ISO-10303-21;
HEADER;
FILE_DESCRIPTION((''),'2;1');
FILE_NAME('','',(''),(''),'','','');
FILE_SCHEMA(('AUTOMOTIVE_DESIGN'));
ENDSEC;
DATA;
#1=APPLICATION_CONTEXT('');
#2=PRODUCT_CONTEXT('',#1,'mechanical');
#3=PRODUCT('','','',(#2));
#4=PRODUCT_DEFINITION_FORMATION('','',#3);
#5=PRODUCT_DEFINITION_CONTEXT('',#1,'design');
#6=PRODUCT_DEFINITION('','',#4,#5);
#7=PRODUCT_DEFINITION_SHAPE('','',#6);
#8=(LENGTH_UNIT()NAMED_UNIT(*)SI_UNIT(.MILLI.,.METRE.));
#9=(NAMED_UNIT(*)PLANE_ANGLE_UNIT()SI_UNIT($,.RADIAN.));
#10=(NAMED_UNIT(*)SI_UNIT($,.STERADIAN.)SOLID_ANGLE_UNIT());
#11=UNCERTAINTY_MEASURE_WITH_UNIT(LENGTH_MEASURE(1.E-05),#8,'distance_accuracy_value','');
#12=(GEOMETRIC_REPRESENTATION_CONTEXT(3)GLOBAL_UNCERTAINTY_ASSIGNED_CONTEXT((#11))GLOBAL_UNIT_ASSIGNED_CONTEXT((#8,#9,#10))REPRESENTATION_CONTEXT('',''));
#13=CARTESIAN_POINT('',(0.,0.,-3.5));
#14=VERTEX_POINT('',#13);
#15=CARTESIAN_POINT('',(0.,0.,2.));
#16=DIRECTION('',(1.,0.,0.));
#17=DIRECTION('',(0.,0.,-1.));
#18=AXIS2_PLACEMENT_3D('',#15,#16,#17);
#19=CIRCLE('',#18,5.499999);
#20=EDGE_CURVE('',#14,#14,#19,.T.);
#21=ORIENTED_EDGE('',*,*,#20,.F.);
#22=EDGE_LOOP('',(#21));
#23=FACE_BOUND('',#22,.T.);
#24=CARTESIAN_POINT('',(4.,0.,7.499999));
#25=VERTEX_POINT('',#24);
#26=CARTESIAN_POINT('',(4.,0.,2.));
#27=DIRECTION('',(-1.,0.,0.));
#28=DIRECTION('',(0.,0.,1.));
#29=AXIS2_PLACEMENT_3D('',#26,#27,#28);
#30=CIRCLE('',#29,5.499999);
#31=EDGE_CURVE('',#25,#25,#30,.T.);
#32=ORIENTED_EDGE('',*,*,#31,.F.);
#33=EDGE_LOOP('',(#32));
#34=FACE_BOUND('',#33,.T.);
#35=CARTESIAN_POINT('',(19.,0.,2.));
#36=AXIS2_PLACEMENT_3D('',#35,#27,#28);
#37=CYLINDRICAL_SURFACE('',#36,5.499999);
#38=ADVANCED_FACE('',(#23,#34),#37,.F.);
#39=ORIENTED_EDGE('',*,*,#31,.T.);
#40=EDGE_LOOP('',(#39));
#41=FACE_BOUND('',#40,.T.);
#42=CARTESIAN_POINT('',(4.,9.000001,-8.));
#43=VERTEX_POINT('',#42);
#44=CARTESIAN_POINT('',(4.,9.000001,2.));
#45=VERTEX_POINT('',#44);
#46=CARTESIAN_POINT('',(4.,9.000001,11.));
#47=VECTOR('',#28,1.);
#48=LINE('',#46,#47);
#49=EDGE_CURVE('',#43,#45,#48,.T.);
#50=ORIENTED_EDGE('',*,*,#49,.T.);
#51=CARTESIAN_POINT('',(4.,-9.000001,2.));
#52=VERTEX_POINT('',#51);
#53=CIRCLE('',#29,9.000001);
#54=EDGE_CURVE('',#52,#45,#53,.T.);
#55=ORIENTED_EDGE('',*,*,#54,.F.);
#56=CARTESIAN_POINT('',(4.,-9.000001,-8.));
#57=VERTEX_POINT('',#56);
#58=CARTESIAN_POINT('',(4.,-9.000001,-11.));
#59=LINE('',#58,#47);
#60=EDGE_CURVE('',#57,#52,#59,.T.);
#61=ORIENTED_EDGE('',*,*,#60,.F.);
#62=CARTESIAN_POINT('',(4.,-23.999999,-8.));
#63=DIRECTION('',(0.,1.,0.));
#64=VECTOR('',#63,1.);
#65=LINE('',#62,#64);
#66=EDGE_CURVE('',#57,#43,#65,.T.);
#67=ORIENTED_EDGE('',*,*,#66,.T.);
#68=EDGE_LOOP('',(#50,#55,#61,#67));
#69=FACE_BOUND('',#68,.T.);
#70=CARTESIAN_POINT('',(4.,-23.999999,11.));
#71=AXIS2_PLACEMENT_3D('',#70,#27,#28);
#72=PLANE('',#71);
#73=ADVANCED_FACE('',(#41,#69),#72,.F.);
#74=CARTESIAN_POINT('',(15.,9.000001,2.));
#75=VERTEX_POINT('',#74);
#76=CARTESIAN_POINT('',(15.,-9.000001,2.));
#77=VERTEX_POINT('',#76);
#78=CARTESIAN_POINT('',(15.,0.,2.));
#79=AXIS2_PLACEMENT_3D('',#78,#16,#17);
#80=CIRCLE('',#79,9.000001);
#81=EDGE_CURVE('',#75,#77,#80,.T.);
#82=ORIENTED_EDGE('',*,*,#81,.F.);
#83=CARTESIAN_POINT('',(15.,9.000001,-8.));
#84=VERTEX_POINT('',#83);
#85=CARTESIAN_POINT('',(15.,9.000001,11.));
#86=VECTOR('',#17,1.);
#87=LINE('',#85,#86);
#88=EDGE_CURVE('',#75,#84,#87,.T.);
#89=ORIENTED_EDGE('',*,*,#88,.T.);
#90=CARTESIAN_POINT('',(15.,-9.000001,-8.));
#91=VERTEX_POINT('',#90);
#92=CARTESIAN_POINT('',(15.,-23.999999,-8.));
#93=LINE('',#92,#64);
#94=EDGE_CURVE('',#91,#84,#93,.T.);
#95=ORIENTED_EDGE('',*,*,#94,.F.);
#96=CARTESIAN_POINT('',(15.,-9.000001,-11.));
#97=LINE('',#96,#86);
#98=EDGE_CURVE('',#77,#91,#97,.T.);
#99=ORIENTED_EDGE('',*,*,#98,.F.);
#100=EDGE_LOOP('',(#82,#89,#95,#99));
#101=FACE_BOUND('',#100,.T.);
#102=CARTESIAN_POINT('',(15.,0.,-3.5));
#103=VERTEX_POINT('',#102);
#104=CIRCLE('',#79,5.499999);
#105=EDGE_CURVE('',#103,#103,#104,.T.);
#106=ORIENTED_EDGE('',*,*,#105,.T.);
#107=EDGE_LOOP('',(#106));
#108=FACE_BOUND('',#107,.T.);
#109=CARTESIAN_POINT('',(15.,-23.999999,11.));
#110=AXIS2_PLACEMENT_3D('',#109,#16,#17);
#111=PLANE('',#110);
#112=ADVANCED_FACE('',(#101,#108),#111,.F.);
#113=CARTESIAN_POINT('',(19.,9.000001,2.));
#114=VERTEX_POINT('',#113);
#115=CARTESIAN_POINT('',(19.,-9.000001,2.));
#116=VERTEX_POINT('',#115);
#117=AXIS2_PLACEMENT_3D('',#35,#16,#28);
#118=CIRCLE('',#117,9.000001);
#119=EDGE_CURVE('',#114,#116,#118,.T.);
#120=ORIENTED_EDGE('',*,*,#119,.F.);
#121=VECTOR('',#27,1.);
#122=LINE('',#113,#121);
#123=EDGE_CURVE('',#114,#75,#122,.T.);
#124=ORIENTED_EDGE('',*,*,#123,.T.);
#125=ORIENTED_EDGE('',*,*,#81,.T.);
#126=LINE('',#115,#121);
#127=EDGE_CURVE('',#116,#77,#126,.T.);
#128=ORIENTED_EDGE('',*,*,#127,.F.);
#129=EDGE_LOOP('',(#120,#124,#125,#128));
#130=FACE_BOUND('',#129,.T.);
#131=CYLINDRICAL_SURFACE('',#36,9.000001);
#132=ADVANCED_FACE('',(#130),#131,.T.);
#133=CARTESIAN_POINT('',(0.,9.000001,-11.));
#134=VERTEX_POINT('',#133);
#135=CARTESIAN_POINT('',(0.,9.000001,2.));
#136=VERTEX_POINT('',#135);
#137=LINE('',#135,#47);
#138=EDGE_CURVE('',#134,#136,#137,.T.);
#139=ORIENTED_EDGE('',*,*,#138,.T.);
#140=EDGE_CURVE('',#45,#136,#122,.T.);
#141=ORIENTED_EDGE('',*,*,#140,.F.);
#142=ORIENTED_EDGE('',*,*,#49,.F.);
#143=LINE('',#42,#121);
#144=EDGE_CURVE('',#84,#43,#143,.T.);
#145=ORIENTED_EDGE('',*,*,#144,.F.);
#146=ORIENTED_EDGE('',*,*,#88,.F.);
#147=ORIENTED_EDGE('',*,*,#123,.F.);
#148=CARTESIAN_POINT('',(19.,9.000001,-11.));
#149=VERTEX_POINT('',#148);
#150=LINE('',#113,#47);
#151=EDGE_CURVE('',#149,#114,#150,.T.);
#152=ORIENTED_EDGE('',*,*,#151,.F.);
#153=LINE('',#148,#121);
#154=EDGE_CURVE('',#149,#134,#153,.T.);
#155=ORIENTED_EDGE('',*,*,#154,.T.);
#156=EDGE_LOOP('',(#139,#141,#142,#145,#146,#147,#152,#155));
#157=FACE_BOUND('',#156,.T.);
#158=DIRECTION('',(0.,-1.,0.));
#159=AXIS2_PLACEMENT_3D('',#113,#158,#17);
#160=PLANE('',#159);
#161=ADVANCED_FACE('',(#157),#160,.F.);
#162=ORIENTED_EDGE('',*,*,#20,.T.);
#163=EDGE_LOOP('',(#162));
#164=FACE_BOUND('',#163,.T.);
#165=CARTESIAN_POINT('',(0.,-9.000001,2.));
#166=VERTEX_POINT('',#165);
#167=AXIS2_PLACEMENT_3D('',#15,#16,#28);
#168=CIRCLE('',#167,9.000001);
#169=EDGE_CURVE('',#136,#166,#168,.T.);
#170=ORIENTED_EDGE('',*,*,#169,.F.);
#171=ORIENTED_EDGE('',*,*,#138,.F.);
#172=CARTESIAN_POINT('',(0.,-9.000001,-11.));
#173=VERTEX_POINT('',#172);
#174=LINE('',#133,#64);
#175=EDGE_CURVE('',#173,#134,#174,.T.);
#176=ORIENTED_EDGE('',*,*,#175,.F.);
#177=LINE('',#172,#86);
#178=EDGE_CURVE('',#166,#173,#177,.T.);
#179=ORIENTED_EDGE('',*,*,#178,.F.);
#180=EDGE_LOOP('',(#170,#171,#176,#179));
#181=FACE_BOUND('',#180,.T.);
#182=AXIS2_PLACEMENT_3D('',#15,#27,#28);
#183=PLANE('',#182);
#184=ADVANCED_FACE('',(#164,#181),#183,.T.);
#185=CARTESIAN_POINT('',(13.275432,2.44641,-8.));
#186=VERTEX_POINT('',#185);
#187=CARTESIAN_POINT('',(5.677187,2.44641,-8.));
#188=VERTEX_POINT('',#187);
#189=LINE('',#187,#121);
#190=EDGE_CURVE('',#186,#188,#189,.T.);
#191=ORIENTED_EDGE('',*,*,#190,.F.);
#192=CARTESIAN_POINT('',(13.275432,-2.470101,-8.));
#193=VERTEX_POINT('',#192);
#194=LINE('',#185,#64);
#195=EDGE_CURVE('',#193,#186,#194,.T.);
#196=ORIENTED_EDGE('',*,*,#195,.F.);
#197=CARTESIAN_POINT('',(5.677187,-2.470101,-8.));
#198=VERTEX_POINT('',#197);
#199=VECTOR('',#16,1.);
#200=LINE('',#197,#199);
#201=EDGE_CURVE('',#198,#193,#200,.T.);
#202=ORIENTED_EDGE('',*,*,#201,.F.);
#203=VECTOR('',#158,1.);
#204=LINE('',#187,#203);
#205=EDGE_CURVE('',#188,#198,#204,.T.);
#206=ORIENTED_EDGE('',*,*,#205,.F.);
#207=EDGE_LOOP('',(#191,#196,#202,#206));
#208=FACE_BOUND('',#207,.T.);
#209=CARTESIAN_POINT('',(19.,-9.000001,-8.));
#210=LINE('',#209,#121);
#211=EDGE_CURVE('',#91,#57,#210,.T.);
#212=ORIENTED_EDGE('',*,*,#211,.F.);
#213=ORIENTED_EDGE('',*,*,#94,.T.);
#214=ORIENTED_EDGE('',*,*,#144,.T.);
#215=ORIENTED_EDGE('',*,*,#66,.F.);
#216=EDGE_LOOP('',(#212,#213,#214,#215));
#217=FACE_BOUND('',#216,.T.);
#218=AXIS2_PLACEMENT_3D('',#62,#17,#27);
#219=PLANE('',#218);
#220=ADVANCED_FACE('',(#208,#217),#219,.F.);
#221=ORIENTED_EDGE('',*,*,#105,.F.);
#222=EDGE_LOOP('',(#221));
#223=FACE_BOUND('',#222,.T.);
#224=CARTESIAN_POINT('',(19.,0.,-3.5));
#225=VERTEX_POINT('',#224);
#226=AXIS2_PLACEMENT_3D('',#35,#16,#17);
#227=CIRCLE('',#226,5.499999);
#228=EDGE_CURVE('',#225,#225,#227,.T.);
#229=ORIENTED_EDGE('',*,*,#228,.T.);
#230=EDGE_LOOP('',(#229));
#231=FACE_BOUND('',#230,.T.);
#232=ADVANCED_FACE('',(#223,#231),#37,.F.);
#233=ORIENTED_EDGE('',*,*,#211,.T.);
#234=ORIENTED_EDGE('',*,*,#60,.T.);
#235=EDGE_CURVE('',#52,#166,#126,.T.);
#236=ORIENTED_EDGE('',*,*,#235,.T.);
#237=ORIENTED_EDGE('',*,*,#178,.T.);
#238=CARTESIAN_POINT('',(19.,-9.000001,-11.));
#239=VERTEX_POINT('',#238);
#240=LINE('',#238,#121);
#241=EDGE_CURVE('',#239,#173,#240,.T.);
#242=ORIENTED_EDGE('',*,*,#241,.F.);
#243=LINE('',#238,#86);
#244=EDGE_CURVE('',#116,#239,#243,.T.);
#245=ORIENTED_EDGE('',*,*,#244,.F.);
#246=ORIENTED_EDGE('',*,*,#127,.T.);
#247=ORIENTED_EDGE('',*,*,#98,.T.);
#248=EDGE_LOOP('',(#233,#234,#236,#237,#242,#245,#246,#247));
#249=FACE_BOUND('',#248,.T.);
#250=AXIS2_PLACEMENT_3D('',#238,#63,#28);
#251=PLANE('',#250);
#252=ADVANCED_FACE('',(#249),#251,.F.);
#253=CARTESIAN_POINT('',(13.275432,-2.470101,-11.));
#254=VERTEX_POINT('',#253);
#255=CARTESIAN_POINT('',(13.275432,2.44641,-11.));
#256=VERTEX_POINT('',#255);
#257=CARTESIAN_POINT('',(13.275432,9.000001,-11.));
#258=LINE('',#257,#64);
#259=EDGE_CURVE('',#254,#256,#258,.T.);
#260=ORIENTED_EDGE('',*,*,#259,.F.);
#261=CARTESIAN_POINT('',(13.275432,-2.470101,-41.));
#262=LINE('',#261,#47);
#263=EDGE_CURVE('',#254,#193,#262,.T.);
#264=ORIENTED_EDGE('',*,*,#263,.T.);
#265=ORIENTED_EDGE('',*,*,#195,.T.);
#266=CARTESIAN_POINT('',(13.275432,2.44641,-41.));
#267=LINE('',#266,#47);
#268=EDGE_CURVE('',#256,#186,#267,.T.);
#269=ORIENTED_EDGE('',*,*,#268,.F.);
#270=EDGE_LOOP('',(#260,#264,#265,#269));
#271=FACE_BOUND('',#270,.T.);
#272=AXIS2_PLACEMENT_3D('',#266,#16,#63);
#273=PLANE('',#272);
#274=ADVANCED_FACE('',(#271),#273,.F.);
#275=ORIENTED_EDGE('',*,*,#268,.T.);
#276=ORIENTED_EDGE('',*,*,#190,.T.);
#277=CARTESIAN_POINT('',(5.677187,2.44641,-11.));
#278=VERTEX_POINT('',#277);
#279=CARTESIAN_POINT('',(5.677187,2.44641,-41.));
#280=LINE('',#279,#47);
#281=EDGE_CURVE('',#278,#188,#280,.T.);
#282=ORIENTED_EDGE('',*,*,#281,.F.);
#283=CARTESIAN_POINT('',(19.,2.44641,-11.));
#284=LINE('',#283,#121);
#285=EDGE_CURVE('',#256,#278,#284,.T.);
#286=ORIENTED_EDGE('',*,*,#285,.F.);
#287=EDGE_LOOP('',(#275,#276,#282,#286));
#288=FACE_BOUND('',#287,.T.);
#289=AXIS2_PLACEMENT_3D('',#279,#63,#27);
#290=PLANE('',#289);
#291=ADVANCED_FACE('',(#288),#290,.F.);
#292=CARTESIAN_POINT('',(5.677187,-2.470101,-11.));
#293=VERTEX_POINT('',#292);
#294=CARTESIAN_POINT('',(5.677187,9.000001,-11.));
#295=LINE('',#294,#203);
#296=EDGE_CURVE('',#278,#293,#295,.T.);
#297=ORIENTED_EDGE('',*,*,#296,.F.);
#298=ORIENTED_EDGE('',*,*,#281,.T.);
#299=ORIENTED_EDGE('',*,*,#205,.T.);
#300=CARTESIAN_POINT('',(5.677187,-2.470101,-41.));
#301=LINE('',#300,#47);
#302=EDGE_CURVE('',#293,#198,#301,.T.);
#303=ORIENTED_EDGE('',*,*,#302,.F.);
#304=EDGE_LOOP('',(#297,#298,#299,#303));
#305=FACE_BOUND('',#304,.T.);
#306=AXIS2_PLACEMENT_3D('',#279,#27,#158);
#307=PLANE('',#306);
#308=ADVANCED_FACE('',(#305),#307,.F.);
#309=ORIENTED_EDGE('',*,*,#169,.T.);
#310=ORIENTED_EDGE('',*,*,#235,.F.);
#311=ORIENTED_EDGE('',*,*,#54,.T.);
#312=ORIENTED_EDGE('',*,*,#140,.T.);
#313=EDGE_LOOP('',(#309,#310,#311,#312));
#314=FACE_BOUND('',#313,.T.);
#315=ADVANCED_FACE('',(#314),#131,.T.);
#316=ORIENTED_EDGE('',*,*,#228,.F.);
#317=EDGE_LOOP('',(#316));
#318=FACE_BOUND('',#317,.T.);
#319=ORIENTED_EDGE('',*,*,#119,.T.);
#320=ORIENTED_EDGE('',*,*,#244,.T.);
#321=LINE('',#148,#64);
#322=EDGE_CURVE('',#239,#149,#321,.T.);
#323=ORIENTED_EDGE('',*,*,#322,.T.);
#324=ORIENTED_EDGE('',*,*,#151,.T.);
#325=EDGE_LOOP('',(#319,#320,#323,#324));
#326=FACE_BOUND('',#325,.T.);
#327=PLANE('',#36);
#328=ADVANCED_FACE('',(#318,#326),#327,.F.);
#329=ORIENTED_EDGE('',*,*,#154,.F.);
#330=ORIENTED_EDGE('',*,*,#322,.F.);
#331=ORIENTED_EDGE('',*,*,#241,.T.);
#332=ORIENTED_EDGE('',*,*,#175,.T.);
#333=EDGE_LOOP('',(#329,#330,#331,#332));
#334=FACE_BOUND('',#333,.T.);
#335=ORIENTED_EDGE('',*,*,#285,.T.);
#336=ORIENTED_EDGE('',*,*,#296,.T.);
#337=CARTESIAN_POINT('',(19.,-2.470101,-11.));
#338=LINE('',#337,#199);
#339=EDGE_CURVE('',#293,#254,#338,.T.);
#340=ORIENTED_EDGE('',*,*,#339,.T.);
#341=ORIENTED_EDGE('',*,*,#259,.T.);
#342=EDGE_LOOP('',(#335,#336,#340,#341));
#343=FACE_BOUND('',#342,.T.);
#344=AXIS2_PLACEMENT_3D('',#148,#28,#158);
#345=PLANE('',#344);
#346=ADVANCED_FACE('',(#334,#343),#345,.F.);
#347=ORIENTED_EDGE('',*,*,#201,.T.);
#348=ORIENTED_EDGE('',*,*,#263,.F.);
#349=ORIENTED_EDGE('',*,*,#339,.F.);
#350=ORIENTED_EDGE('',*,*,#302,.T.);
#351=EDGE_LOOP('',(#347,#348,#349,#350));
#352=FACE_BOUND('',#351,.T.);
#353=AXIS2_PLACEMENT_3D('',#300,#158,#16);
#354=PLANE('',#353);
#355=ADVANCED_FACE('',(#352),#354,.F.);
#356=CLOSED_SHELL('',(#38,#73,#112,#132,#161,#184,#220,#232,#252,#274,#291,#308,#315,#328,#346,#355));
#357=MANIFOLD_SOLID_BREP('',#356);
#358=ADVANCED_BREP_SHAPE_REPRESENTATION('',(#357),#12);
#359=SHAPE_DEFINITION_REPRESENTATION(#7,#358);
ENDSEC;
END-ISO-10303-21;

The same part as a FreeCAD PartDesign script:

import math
import FreeCAD as App
import Part
import Sketcher
Q = App.Units.Quantity

doc = App.newDocument("Part")
body = doc.addObject("PartDesign::Body", "Body")

sketch1 = body.newObject("Sketcher::SketchObject", "Sketch")
sketch1.AttachmentSupport = (doc.getObject("YZ_Plane"), [""])
sketch1.MapMode = "FlatFace"
sketch1.addGeometry([
    Part.LineSegment(App.Vector(9, -11, 0), App.Vector(9, 2, 0)),
    Part.ArcOfCircle(Part.Circle(App.Vector(0, 2, 0), App.Vector(0, 0, 1), 9), math.radians(0), math.radians(180)),
    Part.LineSegment(App.Vector(-9, 2, 0), App.Vector(-9, -11, 0)),
    Part.LineSegment(App.Vector(-9, -11, 0), App.Vector(9, -11, 0)),
    Part.Circle(App.Vector(0, 2, 0), App.Vector(0, 0, 1), 5),
], False)
sketch1.addConstraint([
    Sketcher.Constraint("Tangent", 0, 2, 1, 1),
    Sketcher.Constraint("Tangent", 1, 2, 2, 1),
    Sketcher.Constraint("Coincident", 2, 2, 3, 1),
    Sketcher.Constraint("Coincident", 3, 2, 0, 1),
    Sketcher.Constraint("Vertical", 0),
    Sketcher.Constraint("Vertical", 2),
    Sketcher.Constraint("Horizontal", 3),
    Sketcher.Constraint("Coincident", 4, 3, 1, 3),
    Sketcher.Constraint("PointOnObject", 1, 3, -2),
    Sketcher.Constraint("Diameter", 4, Q("10.999998 mm")),
    Sketcher.Constraint("Radius", 1, Q("9.000001 mm")),
    Sketcher.Constraint("DistanceY", 0, 1, 0, 2, Q("13 mm")),
    Sketcher.Constraint("DistanceY", -1, 1, 1, 3, Q("2 mm")),
])
pad1 = body.newObject("PartDesign::Pad", "Pad")
pad1.Profile = sketch1
pad1.Length = 19

sketch2 = body.newObject("Sketcher::SketchObject", "Sketch001")
sketch2.AttachmentSupport = (doc.getObject("XZ_Plane"), [""])
sketch2.MapMode = "FlatFace"
sketch2.AttachmentOffset = App.Placement(App.Vector(0, 0, -9.000001), App.Rotation())
sketch2.addGeometry([
    Part.LineSegment(App.Vector(4, -8, 0), App.Vector(4, 11, 0)),
    Part.LineSegment(App.Vector(4, 11, 0), App.Vector(15, 11, 0)),
    Part.LineSegment(App.Vector(15, 11, 0), App.Vector(15, -8, 0)),
    Part.LineSegment(App.Vector(15, -8, 0), App.Vector(4, -8, 0)),
], False)
sketch2.addConstraint([
    Sketcher.Constraint("Coincident", 0, 2, 1, 1),
    Sketcher.Constraint("Coincident", 1, 2, 2, 1),
    Sketcher.Constraint("Coincident", 2, 2, 3, 1),
    Sketcher.Constraint("Coincident", 3, 2, 0, 1),
    Sketcher.Constraint("Vertical", 0),
    Sketcher.Constraint("Horizontal", 1),
    Sketcher.Constraint("Vertical", 2),
    Sketcher.Constraint("Horizontal", 3),
    Sketcher.Constraint("DistanceX", 1, 1, 1, 2, Q("11 mm")),
    Sketcher.Constraint("DistanceY", 0, 1, 0, 2, Q("19 mm")),
    Sketcher.Constraint("DistanceX", -1, 1, 0, 2, Q("4 mm")),
    Sketcher.Constraint("DistanceY", -1, 1, 0, 2, Q("11 mm")),
])
pocket1 = body.newObject("PartDesign::Pocket", "Pocket")
pocket1.Profile = sketch2
pocket1.Length = 33
pocket1.Reversed = True

sketch3 = body.newObject("Sketcher::SketchObject", "Sketch002")
sketch3.AttachmentSupport = (doc.getObject("XY_Plane"), [""])
sketch3.MapMode = "FlatFace"
sketch3.AttachmentOffset = App.Placement(App.Vector(0, 0, -8), App.Rotation())
sketch3.addGeometry([
    Part.LineSegment(App.Vector(5.7, 2.4, 0), App.Vector(5.7, -2.5, 0)),
    Part.LineSegment(App.Vector(5.7, -2.5, 0), App.Vector(13.3, -2.5, 0)),
    Part.LineSegment(App.Vector(13.3, -2.5, 0), App.Vector(13.3, 2.4, 0)),
    Part.LineSegment(App.Vector(13.3, 2.4, 0), App.Vector(5.7, 2.4, 0)),
], False)
sketch3.addConstraint([
    Sketcher.Constraint("Coincident", 0, 2, 1, 1),
    Sketcher.Constraint("Coincident", 1, 2, 2, 1),
    Sketcher.Constraint("Coincident", 2, 2, 3, 1),
    Sketcher.Constraint("Coincident", 3, 2, 0, 1),
    Sketcher.Constraint("Vertical", 0),
    Sketcher.Constraint("Horizontal", 1),
    Sketcher.Constraint("Vertical", 2),
    Sketcher.Constraint("Horizontal", 3),
    Sketcher.Constraint("DistanceY", 0, 2, 0, 1, Q("4.916512 mm")),
    Sketcher.Constraint("DistanceY", 0, 2, -1, 1, Q("2.470101 mm")),
    Sketcher.Constraint("DistanceX", 1, 1, 1, 2, Q("7.598245 mm")),
    Sketcher.Constraint("DistanceX", -1, 1, 1, 2, Q("13.275432 mm")),
])
pocket2 = body.newObject("PartDesign::Pocket", "Pocket001")
pocket2.Profile = sketch3
pocket2.Length = 33

doc.recompute()
